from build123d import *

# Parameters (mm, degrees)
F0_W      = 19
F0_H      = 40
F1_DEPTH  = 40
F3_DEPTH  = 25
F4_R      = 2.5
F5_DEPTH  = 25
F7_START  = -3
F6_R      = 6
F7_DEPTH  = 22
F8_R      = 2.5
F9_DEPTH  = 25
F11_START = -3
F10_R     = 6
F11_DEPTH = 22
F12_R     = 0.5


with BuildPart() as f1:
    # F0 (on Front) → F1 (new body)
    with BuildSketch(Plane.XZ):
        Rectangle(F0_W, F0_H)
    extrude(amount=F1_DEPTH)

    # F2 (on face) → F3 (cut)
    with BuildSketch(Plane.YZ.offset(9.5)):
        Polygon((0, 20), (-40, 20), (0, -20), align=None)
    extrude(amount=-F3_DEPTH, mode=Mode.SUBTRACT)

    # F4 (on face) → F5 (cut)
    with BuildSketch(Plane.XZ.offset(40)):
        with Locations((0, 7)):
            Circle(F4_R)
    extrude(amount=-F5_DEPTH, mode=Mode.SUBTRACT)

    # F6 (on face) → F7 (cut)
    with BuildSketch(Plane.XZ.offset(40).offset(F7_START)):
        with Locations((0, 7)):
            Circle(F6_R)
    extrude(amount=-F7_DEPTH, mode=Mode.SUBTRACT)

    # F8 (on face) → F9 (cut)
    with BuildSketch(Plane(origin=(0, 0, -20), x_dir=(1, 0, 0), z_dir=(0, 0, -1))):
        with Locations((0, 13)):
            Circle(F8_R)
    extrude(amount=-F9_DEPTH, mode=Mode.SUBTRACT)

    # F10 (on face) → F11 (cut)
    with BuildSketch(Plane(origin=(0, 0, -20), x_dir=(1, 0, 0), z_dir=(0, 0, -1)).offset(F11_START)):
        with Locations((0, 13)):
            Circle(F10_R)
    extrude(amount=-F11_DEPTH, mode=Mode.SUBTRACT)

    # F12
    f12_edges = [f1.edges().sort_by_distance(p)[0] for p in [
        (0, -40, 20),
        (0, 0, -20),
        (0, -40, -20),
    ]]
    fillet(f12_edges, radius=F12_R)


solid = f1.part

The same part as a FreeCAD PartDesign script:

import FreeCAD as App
import Part
import Sketcher
from FreeCAD import Vector


def edges_at(feature, points):
    """Names of the edges that pass closest to the given points."""
    edges = feature.Shape.Edges
    near = lambda p: min(range(len(edges)), key=lambda i: edges[i].distToShape(Part.Vertex(*p))[0])
    return sorted({f"Edge{near(p) + 1}" for p in points})

doc = App.newDocument("Part")
body = doc.addObject("PartDesign::Body", "Body")

sketch1 = doc.addObject("Sketcher::SketchObject", "Sketch")
body.addObject(sketch1)
sketch1.AttachmentSupport = (doc.XZ_Plane, [""])
sketch1.MapMode = "FlatFace"
sketch1.addGeometry([
    Part.LineSegment(Vector(-9.5, 20, 0), Vector(-9.5, -20, 0)),
    Part.LineSegment(Vector(-9.5, -20, 0), Vector(9.5, -20, 0)),
    Part.LineSegment(Vector(9.5, -20, 0), Vector(9.5, 20, 0)),
    Part.LineSegment(Vector(9.5, 20, 0), Vector(-9.5, 20, 0)),
], False)
sketch1.addConstraint([
    Sketcher.Constraint("Coincident", 0, 2, 1, 1),
    Sketcher.Constraint("Coincident", 1, 2, 2, 1),
    Sketcher.Constraint("Coincident", 2, 2, 3, 1),
    Sketcher.Constraint("Coincident", 3, 2, 0, 1),
    Sketcher.Constraint("Vertical", 0),
    Sketcher.Constraint("Horizontal", 1),
    Sketcher.Constraint("Vertical", 2),
    Sketcher.Constraint("Horizontal", 3),
    Sketcher.Constraint("Symmetric", 0, 2, 2, 2, -1, 1),
    Sketcher.Constraint("DistanceX", 1, 1, 1, 2, 19.0),
    Sketcher.Constraint("DistanceY", 0, 2, 0, 1, 40.0),
])
pad1 = doc.addObject("PartDesign::Pad", "Pad")
body.addObject(pad1)
pad1.Profile = sketch1
pad1.Length = 40

sketch2 = doc.addObject("Sketcher::SketchObject", "Sketch001")
body.addObject(sketch2)
sketch2.AttachmentSupport = (doc.YZ_Plane, [""])
sketch2.MapMode = "FlatFace"
sketch2.AttachmentOffset = App.Placement(Vector(0, 0, 9.5), App.Rotation())
sketch2.addGeometry([
    Part.LineSegment(Vector(0, 20, 0), Vector(-40, 20, 0)),
    Part.LineSegment(Vector(-40, 20, 0), Vector(0, -20, 0)),
    Part.LineSegment(Vector(0, -20, 0), Vector(0, 20, 0)),
], False)
sketch2.addConstraint([
    Sketcher.Constraint("Coincident", 0, 2, 1, 1),
    Sketcher.Constraint("Coincident", 1, 2, 2, 1),
    Sketcher.Constraint("Coincident", 2, 2, 0, 1),
    Sketcher.Constraint("Horizontal", 0),
    Sketcher.Constraint("Vertical", 2),
    Sketcher.Constraint("Symmetric", 1, 2, 2, 2, -1, 1),
    Sketcher.Constraint("Equal", 0, 2),
    Sketcher.Constraint("DistanceX", 0, 2, 0, 1, 40.0),
])
pocket1 = doc.addObject("PartDesign::Pocket", "Pocket")
body.addObject(pocket1)
pocket1.Profile = sketch2
pocket1.Length = 25

sketch3 = doc.addObject("Sketcher::SketchObject", "Sketch002")
body.addObject(sketch3)
sketch3.AttachmentSupport = (doc.XZ_Plane, [""])
sketch3.MapMode = "FlatFace"
sketch3.AttachmentOffset = App.Placement(Vector(0, 0, 40), App.Rotation())
sketch3.addGeometry(Part.Circle(Vector(0, 7, 0), Vector(0, 0, 1), 2.5), False)
sketch3.addConstraint([
    Sketcher.Constraint("PointOnObject", 0, 3, -2),
    Sketcher.Constraint("Diameter", 0, 5.0),
    Sketcher.Constraint("DistanceY", -1, 1, 0, 3, 7.0),
])
pocket2 = doc.addObject("PartDesign::Pocket", "Pocket001")
body.addObject(pocket2)
pocket2.Profile = sketch3
pocket2.Length = 25

sketch4 = doc.addObject("Sketcher::SketchObject", "Sketch003")
body.addObject(sketch4)
sketch4.AttachmentSupport = (doc.XZ_Plane, [""])
sketch4.MapMode = "FlatFace"
sketch4.AttachmentOffset = App.Placement(Vector(0, 0, 37), App.Rotation())
sketch4.addGeometry(Part.Circle(Vector(0, 7, 0), Vector(0, 0, 1), 6), False)
sketch4.addConstraint([
    Sketcher.Constraint("PointOnObject", 0, 3, -2),
    Sketcher.Constraint("Diameter", 0, 12.0),
    Sketcher.Constraint("DistanceY", -1, 1, 0, 3, 7.0),
])
pocket3 = doc.addObject("PartDesign::Pocket", "Pocket002")
body.addObject(pocket3)
pocket3.Profile = sketch4
pocket3.Length = 22

sketch5 = doc.addObject("Sketcher::SketchObject", "Sketch004")
body.addObject(sketch5)
sketch5.AttachmentSupport = (doc.XY_Plane, [""])
sketch5.MapMode = "FlatFace"
sketch5.AttachmentOffset = App.Placement(Vector(0, 0, -20), App.Rotation())
sketch5.addGeometry(Part.Circle(Vector(0, -13, 0), Vector(0, 0, 1), 2.5), False)
sketch5.addConstraint([
    Sketcher.Constraint("PointOnObject", 0, 3, -2),
    Sketcher.Constraint("Diameter", 0, 5.0),
    Sketcher.Constraint("DistanceY", 0, 3, -1, 1, 13.0),
])
pocket4 = doc.addObject("PartDesign::Pocket", "Pocket003")
body.addObject(pocket4)
pocket4.Profile = sketch5
pocket4.Length = 25
pocket4.Reversed = True

sketch6 = doc.addObject("Sketcher::SketchObject", "Sketch005")
body.addObject(sketch6)
sketch6.AttachmentSupport = (doc.XY_Plane, [""])
sketch6.MapMode = "FlatFace"
sketch6.AttachmentOffset = App.Placement(Vector(0, 0, -17), App.Rotation())
sketch6.addGeometry(Part.Circle(Vector(0, -13, 0), Vector(0, 0, 1), 6), False)
sketch6.addConstraint([
    Sketcher.Constraint("PointOnObject", 0, 3, -2),
    Sketcher.Constraint("Diameter", 0, 12.0),
    Sketcher.Constraint("DistanceY", 0, 3, -1, 1, 13.0),
])
pocket5 = doc.addObject("PartDesign::Pocket", "Pocket004")
body.addObject(pocket5)
pocket5.Profile = sketch6
pocket5.Length = 22
pocket5.Reversed = True
doc.recompute()

fillet = doc.addObject("PartDesign::Fillet", "Fillet")
body.addObject(fillet)
fillet.Base = (pocket5, edges_at(pocket5, [(0, -40, 20), (0, 0, -20), (0, -40, -20)]))
fillet.Radius = 0.5

doc.recompute()
